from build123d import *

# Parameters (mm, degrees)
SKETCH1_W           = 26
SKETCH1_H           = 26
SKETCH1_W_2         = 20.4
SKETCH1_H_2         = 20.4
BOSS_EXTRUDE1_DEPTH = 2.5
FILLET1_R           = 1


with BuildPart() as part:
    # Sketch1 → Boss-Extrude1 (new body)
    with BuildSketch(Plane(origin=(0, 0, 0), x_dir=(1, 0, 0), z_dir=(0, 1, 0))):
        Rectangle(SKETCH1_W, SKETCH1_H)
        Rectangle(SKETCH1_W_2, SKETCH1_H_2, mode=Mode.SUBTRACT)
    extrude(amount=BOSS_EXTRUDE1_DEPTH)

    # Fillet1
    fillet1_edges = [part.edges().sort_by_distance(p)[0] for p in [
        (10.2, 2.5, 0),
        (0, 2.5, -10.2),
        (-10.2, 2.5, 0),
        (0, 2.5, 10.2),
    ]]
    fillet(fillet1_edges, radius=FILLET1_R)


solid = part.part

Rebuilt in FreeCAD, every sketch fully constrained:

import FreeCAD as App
import Part
import Sketcher

V = App.Vector
Q = App.Units.Quantity


def edges_at(feature, points):
    """Names of the edges that pass closest to the given points."""
    edges = feature.Shape.Edges
    near = lambda p: min(range(len(edges)), key=lambda i: edges[i].distToShape(Part.Vertex(*p))[0])
    return sorted({f"Edge{near(p) + 1}" for p in points})

doc = App.newDocument("Part")
params = doc.addObject("Spreadsheet::Sheet", "Params")
for row, (alias, value) in enumerate([
    ("sketch1_width", "26 mm"),
    ("sketch1_width2", "20.4 mm"),
    ("pad1_length", "2.5 mm"),
    ("fillet_radius", "1 mm"),
], start=1):
    params.set(f"A{row}", alias)
    params.set(f"B{row}", "=" + value)
    params.setAlias(f"B{row}", alias)

body = doc.addObject("PartDesign::Body", "Body")

# Sketch on XZ plane
sketch1 = doc.addObject("Sketcher::SketchObject", "Sketch")
body.addObject(sketch1)
sketch1.AttachmentSupport = (doc.XZ_Plane, [""])
sketch1.MapMode = "FlatFace"
sketch1.addGeometry([
    Part.LineSegment(V(-13, -13, 0), V(-13, 13, 0)),  # 0
    Part.LineSegment(V(-13, 13, 0), V(13, 13, 0)),  # 1
    Part.LineSegment(V(13, 13, 0), V(13, -13, 0)),  # 2
    Part.LineSegment(V(13, -13, 0), V(-13, -13, 0)),  # 3
    Part.LineSegment(V(10, 10, 0), V(-10, 10, 0)),  # 4
    Part.LineSegment(V(-10, 10, 0), V(-10, -10, 0)),  # 5
    Part.LineSegment(V(-10, -10, 0), V(10, -10, 0)),  # 6
    Part.LineSegment(V(10, -10, 0), V(10, 10, 0)),  # 7
], False)
sketch1.addConstraint([
    Sketcher.Constraint("Coincident", 0, 2, 1, 1),
    Sketcher.Constraint("Coincident", 1, 2, 2, 1),
    Sketcher.Constraint("Coincident", 2, 2, 3, 1),
    Sketcher.Constraint("Coincident", 3, 2, 0, 1),
    Sketcher.Constraint("Coincident", 4, 2, 5, 1),
    Sketcher.Constraint("Coincident", 5, 2, 6, 1),
    Sketcher.Constraint("Coincident", 6, 2, 7, 1),
    Sketcher.Constraint("Coincident", 7, 2, 4, 1),
    Sketcher.Constraint("Vertical", 0),
    Sketcher.Constraint("Horizontal", 1),
    Sketcher.Constraint("Vertical", 2),
    Sketcher.Constraint("Horizontal", 3),
    Sketcher.Constraint("Horizontal", 4),
    Sketcher.Constraint("Vertical", 5),
    Sketcher.Constraint("Horizontal", 6),
    Sketcher.Constraint("Vertical", 7),
    Sketcher.Constraint("Symmetric", 0, 2, 2, 2, -1, 1),
    Sketcher.Constraint("Symmetric", 4, 2, 6, 2, -1, 1),
    Sketcher.Constraint("Equal", 3, 0),
    Sketcher.Constraint("Equal", 6, 5),
    Sketcher.Constraint("DistanceX", 1, 1, 1, 2, Q("26 mm")),
    Sketcher.Constraint("DistanceX", 4, 2, 4, 1, Q("20.4 mm")),
])
sketch1.setExpression("Constraints[20]", "Params.sketch1_width")
sketch1.setExpression("Constraints[21]", "Params.sketch1_width2")
pad1 = doc.addObject("PartDesign::Pad", "Pad")
body.addObject(pad1)
pad1.Profile = sketch1
pad1.setExpression("Length", "Params.pad1_length")
pad1.Reversed = True
doc.recompute()

fillet = doc.addObject("PartDesign::Fillet", "Fillet")
body.addObject(fillet)
fillet.Base = (pad1, edges_at(pad1, [
    (10.2, 2.5, 0),
    (0, 2.5, -10.2),
    (-10.2, 2.5, 0),
    (0, 2.5, 10.2),
]))
fillet.setExpression("Radius", "Params.fillet_radius")

doc.recompute()
